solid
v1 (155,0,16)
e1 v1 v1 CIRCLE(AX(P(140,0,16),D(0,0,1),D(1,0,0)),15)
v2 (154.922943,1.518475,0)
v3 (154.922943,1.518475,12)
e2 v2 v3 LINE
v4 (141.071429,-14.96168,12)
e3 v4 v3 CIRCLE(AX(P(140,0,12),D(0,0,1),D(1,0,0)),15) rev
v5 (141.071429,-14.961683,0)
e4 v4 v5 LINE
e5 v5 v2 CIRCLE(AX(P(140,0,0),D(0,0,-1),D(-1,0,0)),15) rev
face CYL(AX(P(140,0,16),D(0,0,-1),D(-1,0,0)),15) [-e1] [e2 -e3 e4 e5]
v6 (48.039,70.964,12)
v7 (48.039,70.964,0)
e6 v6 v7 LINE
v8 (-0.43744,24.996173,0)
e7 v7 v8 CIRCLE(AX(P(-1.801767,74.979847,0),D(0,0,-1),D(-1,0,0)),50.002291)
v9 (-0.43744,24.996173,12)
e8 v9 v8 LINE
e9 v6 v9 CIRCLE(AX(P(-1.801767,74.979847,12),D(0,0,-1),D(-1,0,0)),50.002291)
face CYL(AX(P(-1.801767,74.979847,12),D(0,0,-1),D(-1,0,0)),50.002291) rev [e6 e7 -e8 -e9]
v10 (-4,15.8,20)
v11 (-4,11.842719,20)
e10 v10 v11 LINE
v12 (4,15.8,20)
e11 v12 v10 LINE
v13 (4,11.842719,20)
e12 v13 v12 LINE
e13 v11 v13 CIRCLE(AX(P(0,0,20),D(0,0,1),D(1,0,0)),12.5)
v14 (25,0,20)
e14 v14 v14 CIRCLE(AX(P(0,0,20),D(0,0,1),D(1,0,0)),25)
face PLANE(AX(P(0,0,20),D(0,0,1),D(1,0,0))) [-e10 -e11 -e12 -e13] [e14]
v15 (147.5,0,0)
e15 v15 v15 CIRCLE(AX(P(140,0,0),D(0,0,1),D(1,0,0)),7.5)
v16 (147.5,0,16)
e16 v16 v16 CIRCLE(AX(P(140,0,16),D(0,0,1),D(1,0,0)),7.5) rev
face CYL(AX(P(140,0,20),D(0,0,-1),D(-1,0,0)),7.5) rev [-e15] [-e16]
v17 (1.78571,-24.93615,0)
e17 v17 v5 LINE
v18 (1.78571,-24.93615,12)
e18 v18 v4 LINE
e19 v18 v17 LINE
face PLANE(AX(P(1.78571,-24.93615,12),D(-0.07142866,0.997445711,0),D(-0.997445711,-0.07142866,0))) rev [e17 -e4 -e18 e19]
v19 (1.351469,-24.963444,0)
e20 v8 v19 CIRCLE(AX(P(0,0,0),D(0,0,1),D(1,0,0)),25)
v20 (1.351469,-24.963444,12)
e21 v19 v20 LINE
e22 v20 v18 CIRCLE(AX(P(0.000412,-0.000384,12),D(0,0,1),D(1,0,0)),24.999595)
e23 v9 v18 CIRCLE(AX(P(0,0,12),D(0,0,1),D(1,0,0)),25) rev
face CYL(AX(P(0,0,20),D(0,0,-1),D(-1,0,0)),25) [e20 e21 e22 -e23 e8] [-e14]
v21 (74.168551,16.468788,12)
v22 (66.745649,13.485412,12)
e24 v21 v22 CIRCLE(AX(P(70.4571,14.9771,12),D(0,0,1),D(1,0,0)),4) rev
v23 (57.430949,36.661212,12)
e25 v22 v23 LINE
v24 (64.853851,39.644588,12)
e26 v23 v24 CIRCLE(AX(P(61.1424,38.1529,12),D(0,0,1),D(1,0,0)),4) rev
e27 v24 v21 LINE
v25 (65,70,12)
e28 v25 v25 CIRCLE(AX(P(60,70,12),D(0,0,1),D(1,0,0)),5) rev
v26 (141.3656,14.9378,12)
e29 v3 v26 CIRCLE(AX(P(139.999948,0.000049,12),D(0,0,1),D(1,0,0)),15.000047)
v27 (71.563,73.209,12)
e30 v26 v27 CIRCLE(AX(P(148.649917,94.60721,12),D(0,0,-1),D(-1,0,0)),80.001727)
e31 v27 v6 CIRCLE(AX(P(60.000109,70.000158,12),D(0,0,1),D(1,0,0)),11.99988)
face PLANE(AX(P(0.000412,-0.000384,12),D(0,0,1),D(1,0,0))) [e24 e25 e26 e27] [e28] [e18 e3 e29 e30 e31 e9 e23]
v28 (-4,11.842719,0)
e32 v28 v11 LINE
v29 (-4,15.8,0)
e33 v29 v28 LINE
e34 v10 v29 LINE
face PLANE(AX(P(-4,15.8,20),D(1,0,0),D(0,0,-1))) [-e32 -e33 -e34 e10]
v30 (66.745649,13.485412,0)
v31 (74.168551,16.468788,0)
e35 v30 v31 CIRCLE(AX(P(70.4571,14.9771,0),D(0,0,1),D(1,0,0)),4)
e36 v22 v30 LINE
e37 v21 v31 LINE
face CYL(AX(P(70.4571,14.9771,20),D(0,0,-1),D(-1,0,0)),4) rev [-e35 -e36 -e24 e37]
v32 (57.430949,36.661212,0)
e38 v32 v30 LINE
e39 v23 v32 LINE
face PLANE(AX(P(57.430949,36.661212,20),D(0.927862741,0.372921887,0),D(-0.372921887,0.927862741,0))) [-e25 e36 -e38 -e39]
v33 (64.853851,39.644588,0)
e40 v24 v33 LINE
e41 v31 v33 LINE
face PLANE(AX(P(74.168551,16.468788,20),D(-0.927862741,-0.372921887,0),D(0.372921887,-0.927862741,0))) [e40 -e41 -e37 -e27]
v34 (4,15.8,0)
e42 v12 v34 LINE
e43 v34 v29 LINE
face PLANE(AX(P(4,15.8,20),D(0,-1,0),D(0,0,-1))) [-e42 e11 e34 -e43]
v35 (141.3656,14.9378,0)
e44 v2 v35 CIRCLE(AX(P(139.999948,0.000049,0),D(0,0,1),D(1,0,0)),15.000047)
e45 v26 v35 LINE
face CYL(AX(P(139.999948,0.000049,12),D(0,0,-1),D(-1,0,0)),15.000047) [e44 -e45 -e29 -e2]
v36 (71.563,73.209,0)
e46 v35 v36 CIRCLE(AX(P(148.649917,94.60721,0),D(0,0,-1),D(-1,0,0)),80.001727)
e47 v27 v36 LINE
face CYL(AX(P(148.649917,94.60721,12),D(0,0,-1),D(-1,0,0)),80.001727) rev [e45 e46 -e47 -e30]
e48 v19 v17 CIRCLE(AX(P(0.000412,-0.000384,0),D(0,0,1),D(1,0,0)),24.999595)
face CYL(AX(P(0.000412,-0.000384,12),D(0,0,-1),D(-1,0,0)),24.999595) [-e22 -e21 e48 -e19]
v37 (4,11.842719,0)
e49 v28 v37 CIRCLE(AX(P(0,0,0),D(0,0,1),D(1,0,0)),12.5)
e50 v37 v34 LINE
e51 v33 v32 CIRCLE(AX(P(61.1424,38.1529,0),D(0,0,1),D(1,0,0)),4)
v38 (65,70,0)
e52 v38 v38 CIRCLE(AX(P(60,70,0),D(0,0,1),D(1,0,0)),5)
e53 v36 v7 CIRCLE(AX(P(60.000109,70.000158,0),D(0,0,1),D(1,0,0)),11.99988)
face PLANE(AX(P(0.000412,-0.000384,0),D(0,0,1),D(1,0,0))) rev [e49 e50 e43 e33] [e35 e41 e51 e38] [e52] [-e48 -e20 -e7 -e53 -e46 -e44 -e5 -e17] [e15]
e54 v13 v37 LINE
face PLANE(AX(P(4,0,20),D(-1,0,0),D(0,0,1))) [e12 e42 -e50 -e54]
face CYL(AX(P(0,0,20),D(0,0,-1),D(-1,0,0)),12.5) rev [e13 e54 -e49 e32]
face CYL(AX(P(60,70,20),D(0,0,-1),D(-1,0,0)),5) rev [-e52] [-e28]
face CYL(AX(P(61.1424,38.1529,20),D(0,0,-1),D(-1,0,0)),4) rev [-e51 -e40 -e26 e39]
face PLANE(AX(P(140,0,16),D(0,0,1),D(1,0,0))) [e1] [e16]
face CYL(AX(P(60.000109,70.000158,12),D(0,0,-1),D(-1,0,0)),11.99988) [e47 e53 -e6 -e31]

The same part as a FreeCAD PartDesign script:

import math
import FreeCAD as App
import Part
import Sketcher


def add_polygon(sketch, points):
    """Adds a closed chain of lines whose ends are joined by coincident constraints."""
    first, n = sketch.GeometryCount, len(points)
    for a, b in zip(points, points[1:] + points[:1]):
        sketch.addGeometry(Part.LineSegment(App.Vector(*a, 0), App.Vector(*b, 0)), False)
    for i in range(n):
        sketch.addConstraint(Sketcher.Constraint("Coincident", first + i, 2, first + (i + 1) % n, 1))

doc = App.newDocument("Part")
body = doc.addObject("PartDesign::Body", "Body")

# Sketch on XY plane
sketch1 = body.newObject("Sketcher::SketchObject", "Sketch")
sketch1.AttachmentSupport = (doc.getObject("XY_Plane"), [""])
sketch1.MapMode = "FlatFace"
sketch1.addGeometry([
    Part.LineSegment(App.Vector(1.78571, -24.93615, 0), App.Vector(141.071429, -14.96168, 0)),  # 0
    Part.ArcOfCircle(Part.Circle(App.Vector(139.999948, 0.000049, 0), App.Vector(0, 0, 1), 15.000047), math.radians(-85.903768), math.radians(84.776376)),  # 1
    Part.ArcOfCircle(Part.Circle(App.Vector(148.649917, 94.60721, 0), App.Vector(0, 0, 1), 80.001727), math.radians(-164.486117), math.radians(-95.224131)),  # 2
    Part.ArcOfCircle(Part.Circle(App.Vector(60.000109, 70.000158, 0), App.Vector(0, 0, 1), 11.99988), math.radians(15.509976), math.radians(175.392986)),  # 3
    Part.ArcOfCircle(Part.Circle(App.Vector(-1.801767, 74.979847, 0), App.Vector(0, 0, 1), 50.002291), math.radians(-88.622807), math.radians(-4.606572)),  # 4
    Part.ArcOfCircle(Part.Circle(App.Vector(0.000412, -0.000384, 0), App.Vector(0, 0, 1), 24.999595), math.radians(91.376198), math.radians(274.095153)),  # 5
], False)
sketch1.addConstraint([
    Sketcher.Constraint("Coincident", 0, 2, 1, 1),
    Sketcher.Constraint("Coincident", 1, 2, 2, 2),
    Sketcher.Constraint("Coincident", 2, 1, 3, 1),
    Sketcher.Constraint("Coincident", 3, 2, 4, 2),
    Sketcher.Constraint("Coincident", 4, 1, 5, 1),
    Sketcher.Constraint("Coincident", 5, 2, 0, 1),
    Sketcher.Constraint("DistanceX", 4, 1, -1, 1, 0.6),
    Sketcher.Constraint("Radius", 3, 11.99988),
    Sketcher.Constraint("Radius", 4, 50.002291),
    Sketcher.Constraint("DistanceX", -1, 1, 2, 1, 71.563),
    Sketcher.Constraint("DistanceY", -1, 1, 2, 1, 73.209),
    Sketcher.Constraint("DistanceX", -1, 1, 3, 2, 48.039),
    Sketcher.Constraint("DistanceY", -1, 1, 3, 2, 70.964),
    Sketcher.Constraint("DistanceY", -1, 1, 4, 1, 24.992),
    Sketcher.Constraint("Radius", 1, 15.000047),
    Sketcher.Constraint("Radius", 2, 80.001727),
    Sketcher.Constraint("Radius", 5, 24.999595),
    Sketcher.Constraint("DistanceX", -1, 1, 1, 2, 141.3656),
    Sketcher.Constraint("DistanceY", -1, 1, 1, 2, 14.9378),
    Sketcher.Constraint("DistanceY", 1, 3, 4, 3, 74.979798),
    Sketcher.Constraint("DistanceX", 5, 2, 3, 3, 58.214399),
    Sketcher.Constraint("DistanceX", -1, 1, 0, 2, 141.071429),
    Sketcher.Constraint("DistanceY", 5, 2, -1, 1, 24.93615),
])
pad1 = body.newObject("PartDesign::Pad", "Pad")
pad1.Profile = sketch1
pad1.Length = 12

# Sketch on XY plane
sketch2 = body.newObject("Sketcher::SketchObject", "Sketch001")
sketch2.AttachmentSupport = (doc.getObject("XY_Plane"), [""])
sketch2.MapMode = "FlatFace"
sketch2.addGeometry(Part.Circle(App.Vector(0, 0, 0), App.Vector(0, 0, 1), 25), False)
sketch2.addConstraint([
    Sketcher.Constraint("Coincident", 0, 3, -1, 1),
    Sketcher.Constraint("Diameter", 0, 50.0),
])
pad2 = body.newObject("PartDesign::Pad", "Pad001")
pad2.Profile = sketch2
pad2.Length = 20

# Sketch on XY plane
sketch3 = body.newObject("Sketcher::SketchObject", "Sketch002")
sketch3.AttachmentSupport = (doc.getObject("XY_Plane"), [""])
sketch3.MapMode = "FlatFace"
sketch3.addGeometry(Part.Circle(App.Vector(140, 0, 0), App.Vector(0, 0, 1), 15), False)
sketch3.addConstraint([
    Sketcher.Constraint("PointOnObject", 0, 3, -1),
    Sketcher.Constraint("Diameter", 0, 30.0),
    Sketcher.Constraint("DistanceX", -1, 1, 0, 3, 140.0),
])
pad3 = body.newObject("PartDesign::Pad", "Pad002")
pad3.Profile = sketch3
pad3.Length = 16

# Sketch on XY plane
sketch4 = body.newObject("Sketcher::SketchObject", "Sketch003")
sketch4.AttachmentSupport = (doc.getObject("XY_Plane"), [""])
sketch4.MapMode = "FlatFace"
sketch4.addGeometry(Part.Circle(App.Vector(0, 0, 0), App.Vector(0, 0, 1), 12.5), False)
sketch4.addConstraint([
    Sketcher.Constraint("Coincident", 0, 3, -1, 1),
    Sketcher.Constraint("Diameter", 0, 25.0),
])
pocket1 = body.newObject("PartDesign::Pocket", "Pocket")
pocket1.Profile = sketch4
pocket1.Type = "ThroughAll"
pocket1.Reversed = True

# Sketch on XY plane
sketch5 = body.newObject("Sketcher::SketchObject", "Sketch004")
sketch5.AttachmentSupport = (doc.getObject("XY_Plane"), [""])
sketch5.MapMode = "FlatFace"
sketch5.addGeometry(Part.Circle(App.Vector(140, 0, 0), App.Vector(0, 0, 1), 7.5), False)
sketch5.addConstraint([
    Sketcher.Constraint("PointOnObject", 0, 3, -1),
    Sketcher.Constraint("Diameter", 0, 15.0),
    Sketcher.Constraint("DistanceX", -1, 1, 0, 3, 140.0),
])
pocket2 = body.newObject("PartDesign::Pocket", "Pocket001")
pocket2.Profile = sketch5
pocket2.Type = "ThroughAll"
pocket2.Reversed = True

# Sketch on XY plane
sketch6 = body.newObject("Sketcher::SketchObject", "Sketch005")
sketch6.AttachmentSupport = (doc.getObject("XY_Plane"), [""])
sketch6.MapMode = "FlatFace"
sketch6.addGeometry(Part.Circle(App.Vector(60, 70, 0), App.Vector(0, 0, 1), 5), False)
sketch6.addConstraint([
    Sketcher.Constraint("Diameter", 0, 10.0),
    Sketcher.Constraint("DistanceX", -1, 1, 0, 3, 60.0),
    Sketcher.Constraint("DistanceY", -1, 1, 0, 3, 70.0),
])
pocket3 = body.newObject("PartDesign::Pocket", "Pocket002")
pocket3.Profile = sketch6
pocket3.Type = "ThroughAll"
pocket3.Reversed = True

# Sketch on XY plane
sketch7 = body.newObject("Sketcher::SketchObject", "Sketch006")
sketch7.AttachmentSupport = (doc.getObject("XY_Plane"), [""])
sketch7.MapMode = "FlatFace"
add_polygon(sketch7, [(-4, 15.8), (-4, 0), (4, 0), (4, 15.8)])  # lines 0-3
sketch7.addConstraint([
    Sketcher.Constraint("Vertical", 0),
    Sketcher.Constraint("Horizontal", 1),
    Sketcher.Constraint("Vertical", 2),
    Sketcher.Constraint("Horizontal", 3),
    Sketcher.Constraint("Symmetric", 0, 2, 1, 2, -1, 1),
    Sketcher.Constraint("DistanceX", 1, 1, 1, 2, 8.0),
    Sketcher.Constraint("DistanceY", 0, 2, 0, 1, 15.8),
])
pocket4 = body.newObject("PartDesign::Pocket", "Pocket003")
pocket4.Profile = sketch7
pocket4.Type = "ThroughAll"
pocket4.Reversed = True

# Sketch on XY plane
sketch8 = body.newObject("Sketcher::SketchObject", "Sketch007")
sketch8.AttachmentSupport = (doc.getObject("XY_Plane"), [""])
sketch8.MapMode = "FlatFace"
sketch8.addGeometry([
    Part.LineSegment(App.Vector(74.168551, 16.468788, 0), App.Vector(64.853851, 39.644588, 0)),
    Part.ArcOfCircle(Part.Circle(App.Vector(61.1424, 38.1529, 0), App.Vector(0, 0, 1), 4), math.radians(21.895931), math.radians(201.895931)),
    Part.LineSegment(App.Vector(57.430949, 36.661212, 0), App.Vector(66.745649, 13.485412, 0)),
    Part.ArcOfCircle(Part.Circle(App.Vector(70.4571, 14.9771, 0), App.Vector(0, 0, 1), 4), math.radians(-158.104069), math.radians(21.895931)),
], False)
sketch8.addConstraint([
    Sketcher.Constraint("Tangent", 0, 2, 1, 1),
    Sketcher.Constraint("Tangent", 1, 2, 2, 1),
    Sketcher.Constraint("Tangent", 2, 2, 3, 1),
    Sketcher.Constraint("Tangent", 3, 2, 0, 1),
    Sketcher.Constraint("Equal", 1, 3),
    Sketcher.Constraint("Radius", 1, 4.0),
    Sketcher.Constraint("DistanceX", -1, 1, 1, 3, 61.1424),
    Sketcher.Constraint("DistanceY", -1, 1, 1, 3, 38.1529),
    Sketcher.Constraint("DistanceX", -1, 1, 3, 3, 70.4571),
    Sketcher.Constraint("DistanceY", -1, 1, 3, 3, 14.9771),
])
pocket5 = body.newObject("PartDesign::Pocket", "Pocket004")
pocket5.Profile = sketch8
pocket5.Type = "ThroughAll"
pocket5.Reversed = True

doc.recompute()
